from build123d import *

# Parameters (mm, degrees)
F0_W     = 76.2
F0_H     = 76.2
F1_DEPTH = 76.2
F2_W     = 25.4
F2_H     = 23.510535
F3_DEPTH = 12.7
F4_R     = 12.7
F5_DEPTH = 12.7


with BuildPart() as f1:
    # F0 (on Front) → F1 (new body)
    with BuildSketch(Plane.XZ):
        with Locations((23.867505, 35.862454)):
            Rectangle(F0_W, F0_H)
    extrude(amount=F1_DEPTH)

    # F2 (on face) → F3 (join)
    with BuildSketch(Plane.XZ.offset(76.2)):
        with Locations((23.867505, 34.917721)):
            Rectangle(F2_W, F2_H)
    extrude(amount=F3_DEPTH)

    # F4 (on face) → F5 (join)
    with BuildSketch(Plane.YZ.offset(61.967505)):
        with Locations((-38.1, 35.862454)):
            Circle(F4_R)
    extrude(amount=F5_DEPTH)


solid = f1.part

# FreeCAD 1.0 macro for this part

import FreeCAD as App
import Part
import Sketcher
from FreeCAD import Vector
Q = App.Units.Quantity


def add_polygon(sketch, points):
    """Adds a closed chain of lines whose ends are joined by coincident constraints."""
    first, n = sketch.GeometryCount, len(points)
    for a, b in zip(points, points[1:] + points[:1]):
        sketch.addGeometry(Part.LineSegment(App.Vector(*a, 0), App.Vector(*b, 0)), False)
    for i in range(n):
        sketch.addConstraint(Sketcher.Constraint("Coincident", first + i, 2, first + (i + 1) % n, 1))

doc = App.newDocument("Part")
body = doc.addObject("PartDesign::Body", "Body")

sketch1 = doc.addObject("Sketcher::SketchObject", "Sketch")
body.addObject(sketch1)
sketch1.AttachmentSupport = (doc.XZ_Plane, [""])
sketch1.MapMode = "FlatFace"
add_polygon(sketch1, [(-14, 74), (-14, -2), (62, -2), (62, 74)])
sketch1.addConstraint([
    Sketcher.Constraint("Vertical", 0),
    Sketcher.Constraint("Horizontal", 1),
    Sketcher.Constraint("Vertical", 2),
    Sketcher.Constraint("Horizontal", 3),
    Sketcher.Constraint("Equal", 3, 0),
    Sketcher.Constraint("DistanceX", 1, 1, 1, 2, Q("3 in")),
    Sketcher.Constraint("DistanceX", 0, 2, -1, 1, 14.232495),
    Sketcher.Constraint("DistanceY", 0, 2, -1, 1, 2.237546),
])
pad1 = doc.addObject("PartDesign::Pad", "Pad")
body.addObject(pad1)
pad1.Profile = sketch1
pad1.Length = Q("3 in")

sketch2 = doc.addObject("Sketcher::SketchObject", "Sketch001")
body.addObject(sketch2)
sketch2.AttachmentSupport = (doc.XZ_Plane, [""])
sketch2.MapMode = "FlatFace"
sketch2.AttachmentOffset = App.Placement(Vector(0, 0, 3 * 25.4), App.Rotation())
add_polygon(sketch2, [(11, 47), (11, 23), (37, 23), (37, 47)])
sketch2.addConstraint([
    Sketcher.Constraint("Vertical", 0),
    Sketcher.Constraint("Horizontal", 1),
    Sketcher.Constraint("Vertical", 2),
    Sketcher.Constraint("Horizontal", 3),
    Sketcher.Constraint("DistanceX", 1, 1, 1, 2, Q("1 in")),
    Sketcher.Constraint("DistanceY", 0, 2, 0, 1, 23.510535),
    Sketcher.Constraint("DistanceY", -1, 1, 2, 2, 46.672989),
    Sketcher.Constraint("DistanceX", -1, 1, 0, 2, 11.167505),
])
pad2 = doc.addObject("PartDesign::Pad", "Pad001")
body.addObject(pad2)
pad2.Profile = sketch2
pad2.Length = Q("0.5 in")

sketch3 = doc.addObject("Sketcher::SketchObject", "Sketch002")
body.addObject(sketch3)
sketch3.AttachmentSupport = (doc.YZ_Plane, [""])
sketch3.MapMode = "FlatFace"
sketch3.AttachmentOffset = App.Placement(Vector(0, 0, 61.967505), App.Rotation())
sketch3.addGeometry(Part.Circle(Vector(-38, 36, 0), Vector(0, 0, 1), 13), False)
sketch3.addConstraint([
    Sketcher.Constraint("Diameter", 0, Q("1 in")),
    Sketcher.Constraint("DistanceX", 0, 3, -1, 1, Q("1.5 in")),
    Sketcher.Constraint("DistanceY", -1, 1, 0, 3, 35.862454),
])
pad3 = doc.addObject("PartDesign::Pad", "Pad002")
body.addObject(pad3)
pad3.Profile = sketch3
pad3.Length = Q("0.5 in")

doc.recompute()
